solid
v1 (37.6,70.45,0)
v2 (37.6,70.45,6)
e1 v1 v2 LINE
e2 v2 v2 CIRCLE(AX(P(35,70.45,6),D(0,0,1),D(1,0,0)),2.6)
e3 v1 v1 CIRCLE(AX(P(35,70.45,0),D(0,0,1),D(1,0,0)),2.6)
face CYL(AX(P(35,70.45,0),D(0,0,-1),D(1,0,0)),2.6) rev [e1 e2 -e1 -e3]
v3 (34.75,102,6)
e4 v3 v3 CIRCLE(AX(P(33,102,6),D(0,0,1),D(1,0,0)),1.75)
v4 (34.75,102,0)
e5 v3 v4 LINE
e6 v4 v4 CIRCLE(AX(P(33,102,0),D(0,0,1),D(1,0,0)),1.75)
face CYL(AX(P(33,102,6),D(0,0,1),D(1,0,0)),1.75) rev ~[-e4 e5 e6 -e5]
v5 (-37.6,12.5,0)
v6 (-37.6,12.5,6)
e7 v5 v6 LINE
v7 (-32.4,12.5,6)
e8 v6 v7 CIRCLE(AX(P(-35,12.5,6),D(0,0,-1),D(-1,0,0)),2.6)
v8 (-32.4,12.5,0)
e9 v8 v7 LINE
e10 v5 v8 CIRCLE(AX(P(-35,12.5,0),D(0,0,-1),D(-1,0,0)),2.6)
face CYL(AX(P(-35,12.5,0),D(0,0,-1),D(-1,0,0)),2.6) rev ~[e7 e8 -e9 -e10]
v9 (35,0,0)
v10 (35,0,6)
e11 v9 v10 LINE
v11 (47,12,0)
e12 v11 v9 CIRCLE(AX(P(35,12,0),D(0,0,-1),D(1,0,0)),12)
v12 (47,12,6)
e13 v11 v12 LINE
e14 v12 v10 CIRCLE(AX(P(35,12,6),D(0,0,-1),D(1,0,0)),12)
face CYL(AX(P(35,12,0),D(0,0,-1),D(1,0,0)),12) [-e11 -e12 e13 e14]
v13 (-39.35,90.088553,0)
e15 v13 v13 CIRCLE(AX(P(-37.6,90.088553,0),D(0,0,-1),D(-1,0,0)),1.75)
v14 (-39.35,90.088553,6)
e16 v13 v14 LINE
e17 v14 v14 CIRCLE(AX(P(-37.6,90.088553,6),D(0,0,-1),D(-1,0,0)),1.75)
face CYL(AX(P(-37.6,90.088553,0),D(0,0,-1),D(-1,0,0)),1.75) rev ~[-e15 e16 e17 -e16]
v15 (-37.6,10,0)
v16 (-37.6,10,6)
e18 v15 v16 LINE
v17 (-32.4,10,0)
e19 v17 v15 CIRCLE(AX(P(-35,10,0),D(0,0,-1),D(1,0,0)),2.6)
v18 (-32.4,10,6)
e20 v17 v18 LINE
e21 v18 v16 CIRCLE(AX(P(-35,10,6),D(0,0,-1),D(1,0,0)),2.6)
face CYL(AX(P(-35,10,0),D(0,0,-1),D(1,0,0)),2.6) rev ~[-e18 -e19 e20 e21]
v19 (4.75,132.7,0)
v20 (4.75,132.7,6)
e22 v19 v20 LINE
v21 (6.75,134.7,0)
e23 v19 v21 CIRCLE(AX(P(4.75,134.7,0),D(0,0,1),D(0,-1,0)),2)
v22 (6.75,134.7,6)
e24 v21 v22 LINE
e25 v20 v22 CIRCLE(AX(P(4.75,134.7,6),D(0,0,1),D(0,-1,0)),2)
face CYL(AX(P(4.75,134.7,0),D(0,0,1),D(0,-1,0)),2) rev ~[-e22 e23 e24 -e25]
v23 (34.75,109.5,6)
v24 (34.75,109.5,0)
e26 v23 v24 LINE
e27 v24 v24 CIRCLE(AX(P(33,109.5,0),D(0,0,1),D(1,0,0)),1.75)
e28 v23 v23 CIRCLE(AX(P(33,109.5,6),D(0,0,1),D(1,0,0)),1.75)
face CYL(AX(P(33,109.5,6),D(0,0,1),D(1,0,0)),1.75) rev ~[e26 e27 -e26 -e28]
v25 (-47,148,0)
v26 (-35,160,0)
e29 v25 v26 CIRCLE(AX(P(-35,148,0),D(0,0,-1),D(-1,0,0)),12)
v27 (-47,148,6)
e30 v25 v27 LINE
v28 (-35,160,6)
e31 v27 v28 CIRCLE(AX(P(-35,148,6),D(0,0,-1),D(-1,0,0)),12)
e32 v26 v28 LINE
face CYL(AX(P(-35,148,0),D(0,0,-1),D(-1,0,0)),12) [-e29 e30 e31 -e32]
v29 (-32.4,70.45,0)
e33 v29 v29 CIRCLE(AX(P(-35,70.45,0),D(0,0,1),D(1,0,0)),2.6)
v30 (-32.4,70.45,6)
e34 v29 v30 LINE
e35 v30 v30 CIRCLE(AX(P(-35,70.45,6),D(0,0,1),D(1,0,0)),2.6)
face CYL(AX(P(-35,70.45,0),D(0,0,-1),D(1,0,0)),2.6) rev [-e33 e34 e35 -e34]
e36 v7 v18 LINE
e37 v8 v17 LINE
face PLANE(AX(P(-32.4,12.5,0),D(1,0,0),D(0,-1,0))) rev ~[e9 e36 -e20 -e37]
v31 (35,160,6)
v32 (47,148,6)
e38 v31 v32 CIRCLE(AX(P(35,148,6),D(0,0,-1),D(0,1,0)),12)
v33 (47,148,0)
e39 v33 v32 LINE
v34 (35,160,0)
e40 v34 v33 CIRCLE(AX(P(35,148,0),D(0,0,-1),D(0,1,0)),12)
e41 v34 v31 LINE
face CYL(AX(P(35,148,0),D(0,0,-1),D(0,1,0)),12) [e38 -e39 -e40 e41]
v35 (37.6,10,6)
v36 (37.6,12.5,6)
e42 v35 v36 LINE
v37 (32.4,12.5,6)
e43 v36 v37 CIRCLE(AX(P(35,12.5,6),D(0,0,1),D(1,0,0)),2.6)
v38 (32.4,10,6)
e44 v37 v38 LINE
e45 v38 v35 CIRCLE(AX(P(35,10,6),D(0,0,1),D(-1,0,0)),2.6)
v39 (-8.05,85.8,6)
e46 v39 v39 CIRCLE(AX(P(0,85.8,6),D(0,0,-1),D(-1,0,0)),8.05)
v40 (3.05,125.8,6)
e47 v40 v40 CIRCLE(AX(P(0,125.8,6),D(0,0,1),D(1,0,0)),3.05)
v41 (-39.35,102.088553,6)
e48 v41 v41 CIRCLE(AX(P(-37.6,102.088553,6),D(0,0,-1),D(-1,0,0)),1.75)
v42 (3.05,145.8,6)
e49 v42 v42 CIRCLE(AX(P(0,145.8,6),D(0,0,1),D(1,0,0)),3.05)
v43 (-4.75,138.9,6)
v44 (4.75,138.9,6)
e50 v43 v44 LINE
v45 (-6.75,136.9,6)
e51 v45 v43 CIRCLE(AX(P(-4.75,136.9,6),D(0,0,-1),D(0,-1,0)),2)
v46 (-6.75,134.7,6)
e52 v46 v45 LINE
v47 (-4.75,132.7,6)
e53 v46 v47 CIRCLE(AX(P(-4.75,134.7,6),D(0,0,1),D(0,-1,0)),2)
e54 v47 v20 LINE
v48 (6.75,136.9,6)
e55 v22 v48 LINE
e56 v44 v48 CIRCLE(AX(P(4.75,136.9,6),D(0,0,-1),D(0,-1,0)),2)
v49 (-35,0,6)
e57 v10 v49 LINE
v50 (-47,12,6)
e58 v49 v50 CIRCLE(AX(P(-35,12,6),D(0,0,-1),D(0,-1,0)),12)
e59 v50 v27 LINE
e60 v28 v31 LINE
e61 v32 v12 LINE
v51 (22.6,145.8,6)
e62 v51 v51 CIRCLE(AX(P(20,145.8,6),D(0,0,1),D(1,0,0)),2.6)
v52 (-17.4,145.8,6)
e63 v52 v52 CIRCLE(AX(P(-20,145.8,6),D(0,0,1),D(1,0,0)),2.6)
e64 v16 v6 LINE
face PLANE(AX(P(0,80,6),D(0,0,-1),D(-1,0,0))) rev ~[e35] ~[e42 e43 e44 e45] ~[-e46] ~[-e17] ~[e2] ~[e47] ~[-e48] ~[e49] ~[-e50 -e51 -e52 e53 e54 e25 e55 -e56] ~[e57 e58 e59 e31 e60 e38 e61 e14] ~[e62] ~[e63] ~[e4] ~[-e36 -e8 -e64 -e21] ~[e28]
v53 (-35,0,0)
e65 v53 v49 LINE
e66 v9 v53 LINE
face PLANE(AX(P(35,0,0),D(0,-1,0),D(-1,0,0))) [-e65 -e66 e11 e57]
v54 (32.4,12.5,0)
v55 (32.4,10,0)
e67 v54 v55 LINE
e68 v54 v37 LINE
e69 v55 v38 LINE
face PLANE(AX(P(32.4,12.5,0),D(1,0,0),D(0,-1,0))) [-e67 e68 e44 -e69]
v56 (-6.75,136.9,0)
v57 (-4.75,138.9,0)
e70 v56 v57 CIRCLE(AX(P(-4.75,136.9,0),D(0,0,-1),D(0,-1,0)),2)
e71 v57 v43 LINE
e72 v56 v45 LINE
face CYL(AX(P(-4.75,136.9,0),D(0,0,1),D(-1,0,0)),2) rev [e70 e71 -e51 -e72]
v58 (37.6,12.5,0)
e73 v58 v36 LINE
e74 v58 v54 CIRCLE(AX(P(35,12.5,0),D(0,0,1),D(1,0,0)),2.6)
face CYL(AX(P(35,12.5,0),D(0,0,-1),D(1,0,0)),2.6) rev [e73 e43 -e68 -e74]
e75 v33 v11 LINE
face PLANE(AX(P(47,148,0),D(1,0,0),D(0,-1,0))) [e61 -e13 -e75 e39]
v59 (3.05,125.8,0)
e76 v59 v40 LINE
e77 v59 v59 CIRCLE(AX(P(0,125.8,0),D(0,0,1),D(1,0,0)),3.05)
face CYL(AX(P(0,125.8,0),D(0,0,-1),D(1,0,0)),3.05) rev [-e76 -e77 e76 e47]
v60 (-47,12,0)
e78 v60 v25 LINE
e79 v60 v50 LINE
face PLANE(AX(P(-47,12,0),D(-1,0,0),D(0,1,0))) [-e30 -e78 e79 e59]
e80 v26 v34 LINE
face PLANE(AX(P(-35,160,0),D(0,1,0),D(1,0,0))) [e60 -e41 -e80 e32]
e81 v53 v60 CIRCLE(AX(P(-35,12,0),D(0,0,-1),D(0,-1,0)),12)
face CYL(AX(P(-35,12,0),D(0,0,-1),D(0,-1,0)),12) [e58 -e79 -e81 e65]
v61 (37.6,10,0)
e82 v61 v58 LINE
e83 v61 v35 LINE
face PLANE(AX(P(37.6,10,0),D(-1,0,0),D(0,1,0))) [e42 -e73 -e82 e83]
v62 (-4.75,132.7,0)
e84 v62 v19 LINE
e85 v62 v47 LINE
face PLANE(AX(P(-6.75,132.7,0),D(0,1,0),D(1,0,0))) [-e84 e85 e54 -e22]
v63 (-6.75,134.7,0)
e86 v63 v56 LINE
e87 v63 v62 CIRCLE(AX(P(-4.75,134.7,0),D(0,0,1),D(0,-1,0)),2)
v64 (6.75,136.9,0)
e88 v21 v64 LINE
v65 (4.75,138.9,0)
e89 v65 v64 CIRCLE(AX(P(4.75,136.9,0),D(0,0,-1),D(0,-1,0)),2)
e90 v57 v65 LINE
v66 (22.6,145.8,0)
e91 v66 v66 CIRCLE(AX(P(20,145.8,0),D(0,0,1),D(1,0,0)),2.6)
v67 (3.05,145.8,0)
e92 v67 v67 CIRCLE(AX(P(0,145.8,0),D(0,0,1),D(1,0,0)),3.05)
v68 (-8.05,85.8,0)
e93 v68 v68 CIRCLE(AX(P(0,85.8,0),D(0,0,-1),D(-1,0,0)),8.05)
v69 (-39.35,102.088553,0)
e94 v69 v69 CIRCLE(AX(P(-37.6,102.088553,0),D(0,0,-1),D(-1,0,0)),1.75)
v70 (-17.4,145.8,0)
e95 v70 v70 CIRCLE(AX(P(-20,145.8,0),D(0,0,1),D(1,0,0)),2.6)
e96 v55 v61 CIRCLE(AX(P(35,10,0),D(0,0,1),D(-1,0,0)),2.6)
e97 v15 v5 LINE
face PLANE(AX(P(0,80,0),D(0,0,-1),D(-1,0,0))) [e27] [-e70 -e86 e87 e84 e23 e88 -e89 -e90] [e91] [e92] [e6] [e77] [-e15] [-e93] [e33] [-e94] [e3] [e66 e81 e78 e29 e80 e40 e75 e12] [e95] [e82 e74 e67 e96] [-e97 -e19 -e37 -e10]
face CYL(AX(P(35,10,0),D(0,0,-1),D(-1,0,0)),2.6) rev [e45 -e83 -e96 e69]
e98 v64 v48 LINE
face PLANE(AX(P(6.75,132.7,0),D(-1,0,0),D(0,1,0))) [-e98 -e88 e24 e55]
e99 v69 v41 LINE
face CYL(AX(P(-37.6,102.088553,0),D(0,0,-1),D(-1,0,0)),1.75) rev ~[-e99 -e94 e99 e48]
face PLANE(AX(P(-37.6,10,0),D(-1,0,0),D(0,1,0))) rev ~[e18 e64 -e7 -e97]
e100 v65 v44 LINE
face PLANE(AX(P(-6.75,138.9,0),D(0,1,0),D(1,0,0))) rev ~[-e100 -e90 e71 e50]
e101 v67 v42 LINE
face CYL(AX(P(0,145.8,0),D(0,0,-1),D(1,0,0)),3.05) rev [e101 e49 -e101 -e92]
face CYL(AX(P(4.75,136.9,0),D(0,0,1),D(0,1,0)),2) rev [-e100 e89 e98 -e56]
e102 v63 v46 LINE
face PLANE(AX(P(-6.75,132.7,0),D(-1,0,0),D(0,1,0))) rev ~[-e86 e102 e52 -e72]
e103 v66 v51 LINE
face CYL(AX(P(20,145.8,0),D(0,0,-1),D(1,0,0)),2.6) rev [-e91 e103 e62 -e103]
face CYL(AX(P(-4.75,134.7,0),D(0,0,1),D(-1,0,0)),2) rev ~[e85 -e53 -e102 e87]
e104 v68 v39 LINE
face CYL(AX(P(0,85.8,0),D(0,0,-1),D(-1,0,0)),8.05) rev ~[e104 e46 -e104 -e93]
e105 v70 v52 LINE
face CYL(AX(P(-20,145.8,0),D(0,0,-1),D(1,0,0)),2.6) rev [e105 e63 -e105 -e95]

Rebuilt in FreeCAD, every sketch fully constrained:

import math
import FreeCAD as App
import Part
import Sketcher
from FreeCAD import Vector
Q = App.Units.Quantity


def edges_at(feature, points):
    """Names of the edges that pass closest to the given points."""
    edges = feature.Shape.Edges
    near = lambda p: min(range(len(edges)), key=lambda i: edges[i].distToShape(Part.Vertex(*p))[0])
    return sorted({f"Edge{near(p) + 1}" for p in points})

doc = App.newDocument("Part")
body = doc.addObject("PartDesign::Body", "Body")

# Sketch on XY plane
sketch1 = body.newObject("Sketcher::SketchObject", "Sketch")
sketch1.AttachmentSupport = (doc.getObject("XY_Plane"), [""])
sketch1.MapMode = "FlatFace"
sketch1.addGeometry([
    Part.LineSegment(Vector(35, 160, 0), Vector(-35, 160, 0)),  # 0
    Part.ArcOfCircle(Part.Circle(Vector(-35, 148, 0), Vector(0, 0, 1), 12), math.radians(90), math.radians(180)),  # 1
    Part.LineSegment(Vector(-47, 148, 0), Vector(-47, 12, 0)),  # 2
    Part.ArcOfCircle(Part.Circle(Vector(-35, 12, 0), Vector(0, 0, 1), 12), math.radians(-180), math.radians(-90)),  # 3
    Part.LineSegment(Vector(-35, 0, 0), Vector(35, 0, 0)),  # 4
    Part.ArcOfCircle(Part.Circle(Vector(35, 12, 0), Vector(0, 0, 1), 12), math.radians(-90), math.radians(0)),  # 5
    Part.LineSegment(Vector(47, 12, 0), Vector(47, 148, 0)),  # 6
    Part.ArcOfCircle(Part.Circle(Vector(35, 148, 0), Vector(0, 0, 1), 12), math.radians(0), math.radians(90)),  # 7
    Part.ArcOfCircle(Part.Circle(Vector(35, 12.5, 0), Vector(0, 0, 1), 2.6), math.radians(0), math.radians(180)),  # 8
    Part.LineSegment(Vector(37.6, 12.5, 0), Vector(37.6, 10, 0)),  # 9
    Part.ArcOfCircle(Part.Circle(Vector(35, 10, 0), Vector(0, 0, 1), 2.6), math.radians(180), math.radians(360)),  # 10
    Part.LineSegment(Vector(32.4, 10, 0), Vector(32.4, 12.5, 0)),  # 11
    Part.Circle(Vector(35, 70.5, 0), Vector(0, 0, 1), 2.6),  # 12
    Part.LineSegment(Vector(-32.4, 12.5, 0), Vector(-32.4, 10, 0)),  # 13
    Part.ArcOfCircle(Part.Circle(Vector(-35, 10, 0), Vector(0, 0, 1), 2.6), math.radians(180), math.radians(360)),  # 14
    Part.LineSegment(Vector(-37.6, 10, 0), Vector(-37.6, 12.5, 0)),  # 15
    Part.ArcOfCircle(Part.Circle(Vector(-35, 12.5, 0), Vector(0, 0, 1), 2.6), math.radians(0), math.radians(180)),  # 16
    Part.Circle(Vector(-35, 70.5, 0), Vector(0, 0, 1), 2.6),  # 17
    Part.Circle(Vector(20, 145.8, 0), Vector(0, 0, 1), 2.6),  # 18
    Part.Circle(Vector(0, 125.8, 0), Vector(0, 0, 1), 3),  # 19
    Part.LineSegment(Vector(-6.8, 132.7, 0), Vector(-6.8, 138.9, 0)),  # 20
    Part.LineSegment(Vector(-6.8, 138.9, 0), Vector(6.8, 138.9, 0)),  # 21
    Part.LineSegment(Vector(6.8, 138.9, 0), Vector(6.8, 132.7, 0)),  # 22
    Part.LineSegment(Vector(6.8, 132.7, 0), Vector(-6.8, 132.7, 0)),  # 23
    Part.Circle(Vector(0, 145.8, 0), Vector(0, 0, 1), 3),  # 24
    Part.Circle(Vector(-20, 145.8, 0), Vector(0, 0, 1), 2.6),  # 25
], False)
sketch1.addConstraint([
    Sketcher.Constraint("Tangent", 0, 2, 1, 1),
    Sketcher.Constraint("Tangent", 1, 2, 2, 1),
    Sketcher.Constraint("Tangent", 2, 2, 3, 1),
    Sketcher.Constraint("Tangent", 3, 2, 4, 1),
    Sketcher.Constraint("Tangent", 4, 2, 5, 1),
    Sketcher.Constraint("Tangent", 5, 2, 6, 1),
    Sketcher.Constraint("Tangent", 6, 2, 7, 1),
    Sketcher.Constraint("Tangent", 7, 2, 0, 1),
    Sketcher.Constraint("Tangent", 8, 1, 9, 1),
    Sketcher.Constraint("Tangent", 9, 2, 10, 2),
    Sketcher.Constraint("Tangent", 10, 1, 11, 1),
    Sketcher.Constraint("Tangent", 11, 2, 8, 2),
    Sketcher.Constraint("Tangent", 13, 2, 14, 2),
    Sketcher.Constraint("Tangent", 14, 1, 15, 1),
    Sketcher.Constraint("Tangent", 15, 2, 16, 2),
    Sketcher.Constraint("Tangent", 16, 1, 13, 1),
    Sketcher.Constraint("Coincident", 20, 2, 21, 1),
    Sketcher.Constraint("Coincident", 21, 2, 22, 1),
    Sketcher.Constraint("Coincident", 22, 2, 23, 1),
    Sketcher.Constraint("Coincident", 23, 2, 20, 1),
    Sketcher.Constraint("Horizontal", 0),
    Sketcher.Constraint("Vertical", 2),
    Sketcher.Constraint("Horizontal", 4),
    Sketcher.Constraint("Vertical", 6),
    Sketcher.Constraint("Vertical", 9),
    Sketcher.Constraint("Vertical", 11),
    Sketcher.Constraint("Vertical", 13),
    Sketcher.Constraint("Vertical", 15),
    Sketcher.Constraint("Vertical", 20),
    Sketcher.Constraint("Horizontal", 21),
    Sketcher.Constraint("Vertical", 22),
    Sketcher.Constraint("Horizontal", 23),
    Sketcher.Constraint("Equal", 1, 3),
    Sketcher.Constraint("Equal", 3, 5),
    Sketcher.Constraint("Equal", 5, 7),
    Sketcher.Constraint("Equal", 10, 12),
    Sketcher.Constraint("Equal", 12, 14),
    Sketcher.Constraint("Equal", 16, 17),
    Sketcher.Constraint("Equal", 17, 18),
    Sketcher.Constraint("Equal", 19, 24),
    Sketcher.Constraint("Equal", 18, 25),
    Sketcher.Constraint("Symmetric", 3, 2, 4, 2, -1, 1),
    Sketcher.Constraint("Symmetric", 10, 3, 14, 3, -2),
    Sketcher.Constraint("Symmetric", 12, 3, 17, 3, -2),
    Sketcher.Constraint("Symmetric", 18, 3, 25, 3, -2),
    Sketcher.Constraint("PointOnObject", 19, 3, -2),
    Sketcher.Constraint("PointOnObject", 24, 3, -2),
    Sketcher.Constraint("Horizontal", 8, 3, 16, 3),
    Sketcher.Constraint("Horizontal", 18, 3, 24, 3),
    Sketcher.Constraint("Vertical", 7, 3, 8, 3),
    Sketcher.Constraint("Vertical", 10, 3, 12, 3),
    Sketcher.Constraint("Radius", 1, Q("12 mm")),
    Sketcher.Constraint("Diameter", 12, Q("5.2 mm")),
    Sketcher.Constraint("Diameter", 19, Q("6.1 mm")),
    Sketcher.Constraint("DistanceX", 0, 2, 0, 1, Q("70 mm")),
    Sketcher.Constraint("DistanceY", 2, 2, 2, 1, Q("136 mm")),
    Sketcher.Constraint("DistanceX", 21, 1, 21, 2, Q("13.5 mm")),
    Sketcher.Constraint("DistanceY", 9, 2, 9, 1, Q("2.5 mm")),
    Sketcher.Constraint("DistanceY", 20, 1, 20, 2, Q("6.2 mm")),
    Sketcher.Constraint("DistanceY", -1, 1, 10, 3, Q("10 mm")),
    Sketcher.Constraint("DistanceX", -1, 1, 18, 3, Q("20 mm")),
    Sketcher.Constraint("DistanceY", 19, 3, 18, 3, Q("20 mm")),
    Sketcher.Constraint("DistanceY", -1, 1, 18, 3, Q("145.8 mm")),
    Sketcher.Constraint("DistanceY", -1, 1, 20, 2, Q("138.9 mm")),
    Sketcher.Constraint("DistanceY", -1, 1, 12, 3, Q("70.45 mm")),
    Sketcher.Constraint("DistanceX", 20, 2, -1, 1, Q("6.75 mm")),
])
pad1 = body.newObject("PartDesign::Pad", "Pad")
pad1.Profile = sketch1
pad1.Length = 6

# Sketch on XY plane
sketch2 = body.newObject("Sketcher::SketchObject", "Sketch001")
sketch2.AttachmentSupport = (doc.getObject("XY_Plane"), [""])
sketch2.MapMode = "FlatFace"
sketch2.addGeometry(Part.Circle(Vector(0, 86, 0), Vector(0, 0, 1), 8), False)
sketch2.addConstraint([
    Sketcher.Constraint("PointOnObject", 0, 3, -2),
    Sketcher.Constraint("Diameter", 0, Q("16.1 mm")),
    Sketcher.Constraint("DistanceY", -1, 1, 0, 3, Q("85.8 mm")),
])
pocket1 = body.newObject("PartDesign::Pocket", "Pocket")
pocket1.Profile = sketch2
pocket1.Length = 10
pocket1.Reversed = True

# Sketch on XY plane
sketch3 = body.newObject("Sketcher::SketchObject", "Sketch002")
sketch3.AttachmentSupport = (doc.getObject("XY_Plane"), [""])
sketch3.MapMode = "FlatFace"
sketch3.AttachmentOffset = App.Placement(Vector(0, 0, 6), App.Rotation())
sketch3.addGeometry([
    Part.Circle(Vector(33, 109.5, 0), Vector(0, 0, 1), 1.8),
    Part.Circle(Vector(33, 102, 0), Vector(0, 0, 1), 1.8),
], False)
sketch3.addConstraint([
    Sketcher.Constraint("Equal", 0, 1),
    Sketcher.Constraint("Vertical", 0, 3, 1, 3),
    Sketcher.Constraint("Diameter", 0, Q("3.5 mm")),
    Sketcher.Constraint("DistanceX", -1, 1, 0, 3, Q("33 mm")),
    Sketcher.Constraint("DistanceY", -1, 1, 1, 3, Q("102 mm")),
    Sketcher.Constraint("DistanceY", -1, 1, 0, 3, Q("109.5 mm")),
])
pocket2 = body.newObject("PartDesign::Pocket", "Pocket001")
pocket2.Profile = sketch3
pocket2.Length = 10

# Sketch on XY plane
sketch4 = body.newObject("Sketcher::SketchObject", "Sketch003")
sketch4.AttachmentSupport = (doc.getObject("XY_Plane"), [""])
sketch4.MapMode = "FlatFace"
sketch4.addGeometry([
    Part.Circle(Vector(-37.6, 90.1, 0), Vector(0, 0, 1), 1.8),
    Part.Circle(Vector(-37.6, 102.1, 0), Vector(0, 0, 1), 1.8),
], False)
sketch4.addConstraint([
    Sketcher.Constraint("Equal", 0, 1),
    Sketcher.Constraint("Vertical", 0, 3, 1, 3),
    Sketcher.Constraint("Diameter", 0, Q("3.5 mm")),
    Sketcher.Constraint("DistanceY", 0, 3, 1, 3, Q("12 mm")),
    Sketcher.Constraint("DistanceX", 0, 3, -1, 1, Q("37.6 mm")),
    Sketcher.Constraint("DistanceY", -1, 1, 0, 3, Q("90.088553 mm")),
])
pocket3 = body.newObject("PartDesign::Pocket", "Pocket002")
pocket3.Profile = sketch4
pocket3.Length = 10
pocket3.Reversed = True
doc.recompute()

fillet = body.newObject("PartDesign::Fillet", "Fillet")
fillet.Base = (pocket3, edges_at(pocket3, [
    (6.75, 132.7, 3),
    (6.75, 138.9, 3),
    (-6.75, 138.9, 3),
    (-6.75, 132.7, 3),
]))
fillet.Radius = 2

doc.recompute()
